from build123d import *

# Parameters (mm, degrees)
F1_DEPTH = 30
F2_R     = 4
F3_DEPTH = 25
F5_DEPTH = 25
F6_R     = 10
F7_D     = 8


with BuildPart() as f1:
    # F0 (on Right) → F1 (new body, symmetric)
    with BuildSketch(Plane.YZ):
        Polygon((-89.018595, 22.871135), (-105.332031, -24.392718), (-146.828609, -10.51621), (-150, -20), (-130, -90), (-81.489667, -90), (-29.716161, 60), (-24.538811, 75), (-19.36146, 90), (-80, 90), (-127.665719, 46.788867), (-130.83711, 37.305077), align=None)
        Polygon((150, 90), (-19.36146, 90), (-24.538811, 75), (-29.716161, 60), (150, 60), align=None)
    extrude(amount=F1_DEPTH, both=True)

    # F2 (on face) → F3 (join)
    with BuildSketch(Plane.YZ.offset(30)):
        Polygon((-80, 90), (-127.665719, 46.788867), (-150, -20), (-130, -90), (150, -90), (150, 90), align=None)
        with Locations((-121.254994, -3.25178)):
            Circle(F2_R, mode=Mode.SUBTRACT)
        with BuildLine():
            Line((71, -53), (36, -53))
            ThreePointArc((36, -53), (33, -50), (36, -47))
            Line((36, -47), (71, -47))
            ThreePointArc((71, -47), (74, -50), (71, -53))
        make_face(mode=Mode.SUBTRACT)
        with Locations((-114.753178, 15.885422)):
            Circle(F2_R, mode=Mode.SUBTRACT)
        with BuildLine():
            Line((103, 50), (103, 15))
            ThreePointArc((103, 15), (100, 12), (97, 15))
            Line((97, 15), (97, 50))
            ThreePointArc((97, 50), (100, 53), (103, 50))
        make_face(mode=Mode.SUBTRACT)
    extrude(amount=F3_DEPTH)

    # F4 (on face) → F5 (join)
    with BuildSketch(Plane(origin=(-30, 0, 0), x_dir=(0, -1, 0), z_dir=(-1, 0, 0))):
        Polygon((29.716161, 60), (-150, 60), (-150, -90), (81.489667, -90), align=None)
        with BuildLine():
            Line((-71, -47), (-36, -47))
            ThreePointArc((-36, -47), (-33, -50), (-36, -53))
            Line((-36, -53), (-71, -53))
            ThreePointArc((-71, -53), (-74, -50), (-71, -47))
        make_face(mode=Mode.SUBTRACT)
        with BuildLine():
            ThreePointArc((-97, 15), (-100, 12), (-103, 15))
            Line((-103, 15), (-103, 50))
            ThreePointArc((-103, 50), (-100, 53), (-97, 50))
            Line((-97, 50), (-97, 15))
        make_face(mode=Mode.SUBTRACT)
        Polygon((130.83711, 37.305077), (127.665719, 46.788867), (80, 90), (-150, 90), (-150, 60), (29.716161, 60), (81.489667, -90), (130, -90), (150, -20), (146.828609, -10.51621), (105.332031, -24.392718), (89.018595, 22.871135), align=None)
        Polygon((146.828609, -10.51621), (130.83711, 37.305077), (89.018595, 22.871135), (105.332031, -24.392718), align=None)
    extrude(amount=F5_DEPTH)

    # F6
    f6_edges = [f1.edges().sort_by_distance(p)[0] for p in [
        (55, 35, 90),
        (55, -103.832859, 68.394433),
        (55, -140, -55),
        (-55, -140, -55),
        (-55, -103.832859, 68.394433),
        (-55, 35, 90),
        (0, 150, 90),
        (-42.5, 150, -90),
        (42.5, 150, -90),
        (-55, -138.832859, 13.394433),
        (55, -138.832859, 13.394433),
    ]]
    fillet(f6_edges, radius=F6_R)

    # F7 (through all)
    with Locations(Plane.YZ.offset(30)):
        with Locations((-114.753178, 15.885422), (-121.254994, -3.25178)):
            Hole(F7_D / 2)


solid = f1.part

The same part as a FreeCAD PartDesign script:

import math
import FreeCAD as App
import Part
import Sketcher
from FreeCAD import Vector
Q = App.Units.Quantity


def edges_at(feature, points):
    """Names of the edges that pass closest to the given points."""
    edges = feature.Shape.Edges
    near = lambda p: min(range(len(edges)), key=lambda i: edges[i].distToShape(Part.Vertex(*p))[0])
    return sorted({f"Edge{near(p) + 1}" for p in points})

doc = App.newDocument("Part")
body = doc.addObject("PartDesign::Body", "Body")

# Sketch on YZ plane
sketch1 = body.newObject("Sketcher::SketchObject", "Sketch")
sketch1.AttachmentSupport = (doc.getObject("YZ_Plane"), [""])
sketch1.MapMode = "FlatFace"
sketch1.addGeometry([
    Part.LineSegment(Vector(-89.018595, 22.871135, 0), Vector(-105.332031, -24.392718, 0)),  # 0
    Part.LineSegment(Vector(-105.332031, -24.392718, 0), Vector(-146.828609, -10.51621, 0)),  # 1
    Part.LineSegment(Vector(-146.828609, -10.51621, 0), Vector(-150, -20, 0)),  # 2
    Part.LineSegment(Vector(-150, -20, 0), Vector(-130, -90, 0)),  # 3
    Part.LineSegment(Vector(-130, -90, 0), Vector(-81.489667, -90, 0)),  # 4
    Part.LineSegment(Vector(-81.489667, -90, 0), Vector(-29.716161, 60, 0)),  # 5
    Part.LineSegment(Vector(-29.716161, 60, 0), Vector(150, 60, 0)),  # 6
    Part.LineSegment(Vector(150, 60, 0), Vector(150, 90, 0)),  # 7
    Part.LineSegment(Vector(150, 90, 0), Vector(-80, 90, 0)),  # 8
    Part.LineSegment(Vector(-80, 90, 0), Vector(-127.665719, 46.788867, 0)),  # 9
    Part.LineSegment(Vector(-127.665719, 46.788867, 0), Vector(-130.83711, 37.305077, 0)),  # 10
    Part.LineSegment(Vector(-130.83711, 37.305077, 0), Vector(-89.018595, 22.871135, 0)),  # 11
], False)
sketch1.addConstraint([
    Sketcher.Constraint("Coincident", 0, 2, 1, 1),
    Sketcher.Constraint("Coincident", 1, 2, 2, 1),
    Sketcher.Constraint("Coincident", 2, 2, 3, 1),
    Sketcher.Constraint("Coincident", 3, 2, 4, 1),
    Sketcher.Constraint("Coincident", 4, 2, 5, 1),
    Sketcher.Constraint("Coincident", 5, 2, 6, 1),
    Sketcher.Constraint("Coincident", 6, 2, 7, 1),
    Sketcher.Constraint("Coincident", 7, 2, 8, 1),
    Sketcher.Constraint("Coincident", 8, 2, 9, 1),
    Sketcher.Constraint("Coincident", 9, 2, 10, 1),
    Sketcher.Constraint("Coincident", 10, 2, 11, 1),
    Sketcher.Constraint("Coincident", 11, 2, 0, 1),
    Sketcher.Constraint("Horizontal", 4),
    Sketcher.Constraint("Horizontal", 6),
    Sketcher.Constraint("Vertical", 7),
    Sketcher.Constraint("Horizontal", 8),
    Sketcher.Constraint("DistanceX", 8, 2, 8, 1, Q("230 mm")),
    Sketcher.Constraint("DistanceY", 7, 1, 7, 2, Q("30 mm")),
    Sketcher.Constraint("Distance", 0, Q("50 mm")),
    Sketcher.Constraint("Distance", 2, Q("10 mm")),
    Sketcher.Constraint("Distance", 10, Q("10 mm")),
    Sketcher.Constraint("DistanceX", 2, 2, -1, 1, Q("150 mm")),
    Sketcher.Constraint("DistanceY", 2, 2, -1, 1, Q("20 mm")),
    Sketcher.Constraint("DistanceX", 3, 2, -1, 1, Q("130 mm")),
    Sketcher.Constraint("DistanceY", 3, 2, -1, 1, Q("90 mm")),
    Sketcher.Constraint("DistanceY", -1, 1, 5, 2, Q("60 mm")),
    Sketcher.Constraint("DistanceX", -1, 1, 6, 2, Q("150 mm")),
    Sketcher.Constraint("DistanceX", 6, 1, 6, 2, Q("179.716161 mm")),
    Sketcher.Constraint("DistanceX", 1, 2, 10, 2, Q("15.991499 mm")),
    Sketcher.Constraint("Distance", 9, Q("64.336792 mm")),
    Sketcher.Constraint("DistanceX", 4, 1, 4, 2, Q("48.510333 mm")),
    Sketcher.Constraint("DistanceX", 0, 2, -1, 1, Q("105.332031 mm")),
    Sketcher.Constraint("DistanceX", 1, 2, -1, 1, Q("146.828609 mm")),
    Sketcher.Constraint("DistanceX", 9, 2, -1, 1, Q("127.665719 mm")),
    Sketcher.Constraint("DistanceY", 3, 2, 0, 2, Q("65.607282 mm")),
    Sketcher.Constraint("DistanceY", 11, 2, 10, 2, Q("14.433942 mm")),
])
pad1 = body.newObject("PartDesign::Pad", "Pad")
pad1.Profile = sketch1
pad1.Length = 60
pad1.Midplane = True

# Sketch on YZ plane
sketch2 = body.newObject("Sketcher::SketchObject", "Sketch001")
sketch2.AttachmentSupport = (doc.getObject("YZ_Plane"), [""])
sketch2.MapMode = "FlatFace"
sketch2.AttachmentOffset = App.Placement(Vector(0, 0, 30), App.Rotation())
sketch2.addGeometry([
    Part.LineSegment(Vector(-80, 90, 0), Vector(-127.7, 46.8, 0)),  # 0
    Part.LineSegment(Vector(-127.7, 46.8, 0), Vector(-150, -20, 0)),  # 1
    Part.LineSegment(Vector(-150, -20, 0), Vector(-130, -90, 0)),  # 2
    Part.LineSegment(Vector(-130, -90, 0), Vector(150, -90, 0)),  # 3
    Part.LineSegment(Vector(150, -90, 0), Vector(150, 90, 0)),  # 4
    Part.LineSegment(Vector(150, 90, 0), Vector(-80, 90, 0)),  # 5
    Part.Circle(Vector(-121.3, -3.3, 0), Vector(0, 0, 1), 4),  # 6
    Part.ArcOfCircle(Part.Circle(Vector(71, -50, 0), Vector(0, 0, 1), 3), math.radians(-90), math.radians(90)),  # 7
    Part.LineSegment(Vector(71, -53, 0), Vector(36, -53, 0)),  # 8
    Part.ArcOfCircle(Part.Circle(Vector(36, -50, 0), Vector(0, 0, 1), 3), math.radians(90), math.radians(270)),  # 9
    Part.LineSegment(Vector(36, -47, 0), Vector(71, -47, 0)),  # 10
    Part.Circle(Vector(-114.8, 15.9, 0), Vector(0, 0, 1), 4),  # 11
    Part.ArcOfCircle(Part.Circle(Vector(100, 50, 0), Vector(0, 0, 1), 3), math.radians(0), math.radians(180)),  # 12
    Part.LineSegment(Vector(103, 50, 0), Vector(103, 15, 0)),  # 13
    Part.ArcOfCircle(Part.Circle(Vector(100, 15, 0), Vector(0, 0, 1), 3), math.radians(180), math.radians(360)),  # 14
    Part.LineSegment(Vector(97, 15, 0), Vector(97, 50, 0)),  # 15
], False)
sketch2.addConstraint([
    Sketcher.Constraint("Coincident", 0, 2, 1, 1),
    Sketcher.Constraint("Coincident", 1, 2, 2, 1),
    Sketcher.Constraint("Coincident", 2, 2, 3, 1),
    Sketcher.Constraint("Coincident", 3, 2, 4, 1),
    Sketcher.Constraint("Coincident", 4, 2, 5, 1),
    Sketcher.Constraint("Coincident", 5, 2, 0, 1),
    Sketcher.Constraint("Tangent", 7, 1, 8, 1),
    Sketcher.Constraint("Tangent", 8, 2, 9, 2),
    Sketcher.Constraint("Tangent", 9, 1, 10, 1),
    Sketcher.Constraint("Tangent", 10, 2, 7, 2),
    Sketcher.Constraint("Tangent", 12, 1, 13, 1),
    Sketcher.Constraint("Tangent", 13, 2, 14, 2),
    Sketcher.Constraint("Tangent", 14, 1, 15, 1),
    Sketcher.Constraint("Tangent", 15, 2, 12, 2),
    Sketcher.Constraint("Horizontal", 3),
    Sketcher.Constraint("Vertical", 4),
    Sketcher.Constraint("Horizontal", 5),
    Sketcher.Constraint("Horizontal", 8),
    Sketcher.Constraint("Horizontal", 10),
    Sketcher.Constraint("Vertical", 13),
    Sketcher.Constraint("Vertical", 15),
    Sketcher.Constraint("Equal", 6, 11),
    Sketcher.Constraint("Equal", 9, 12),
    Sketcher.Constraint("Equal", 10, 13),
    Sketcher.Constraint("Diameter", 6, Q("8 mm")),
    Sketcher.Constraint("Radius", 7, Q("3 mm")),
    Sketcher.Constraint("DistanceX", 3, 1, 3, 2, Q("280 mm")),
    Sketcher.Constraint("DistanceX", 5, 2, 5, 1, Q("230 mm")),
    Sketcher.Constraint("DistanceX", 8, 2, 8, 1, Q("35 mm")),
    Sketcher.Constraint("DistanceY", 4, 1, 4, 2, Q("180 mm")),
    Sketcher.Constraint("DistanceX", -1, 1, 7, 3, Q("71 mm")),
    Sketcher.Constraint("DistanceY", 7, 3, -1, 1, Q("50 mm")),
    Sketcher.Constraint("DistanceX", -1, 1, 12, 3, Q("100 mm")),
    Sketcher.Constraint("DistanceY", -1, 1, 12, 3, Q("50 mm")),
    Sketcher.Constraint("DistanceX", 1, 2, -1, 1, Q("150 mm")),
    Sketcher.Constraint("DistanceY", 1, 2, -1, 1, Q("20 mm")),
    Sketcher.Constraint("DistanceX", 2, 2, -1, 1, Q("130 mm")),
    Sketcher.Constraint("DistanceY", 2, 2, -1, 1, Q("90 mm")),
    Sketcher.Constraint("Angle", 1, Q("-108.49 deg")),
    Sketcher.Constraint("Distance", 0, Q("64.336792 mm")),
    Sketcher.Constraint("DistanceY", 6, 3, -1, 1, Q("3.25178 mm")),
    Sketcher.Constraint("DistanceX", 11, 3, -1, 1, Q("114.753178 mm")),
    Sketcher.Constraint("DistanceY", 11, 3, 12, 3, Q("34.114578 mm")),
    Sketcher.Constraint("DistanceX", 6, 3, -1, 1, Q("121.254994 mm")),
])
pad2 = body.newObject("PartDesign::Pad", "Pad001")
pad2.Profile = sketch2
pad2.Length = 25

# Sketch on YZ plane
sketch3 = body.newObject("Sketcher::SketchObject", "Sketch002")
sketch3.AttachmentSupport = (doc.getObject("YZ_Plane"), [""])
sketch3.MapMode = "FlatFace"
sketch3.AttachmentOffset = App.Placement(Vector(0, 0, -30), App.Rotation())
sketch3.addGeometry([
    Part.LineSegment(Vector(150, -90, 0), Vector(-130, -90, 0)),  # 0
    Part.LineSegment(Vector(-130, -90, 0), Vector(-150, -20, 0)),  # 1
    Part.LineSegment(Vector(-150, -20, 0), Vector(-146.8, -10.5, 0)),  # 2
    Part.LineSegment(Vector(-146.8, -10.5, 0), Vector(-130.8, 37.3, 0)),  # 3
    Part.LineSegment(Vector(-130.8, 37.3, 0), Vector(-127.7, 46.8, 0)),  # 4
    Part.LineSegment(Vector(-127.7, 46.8, 0), Vector(-80, 90, 0)),  # 5
    Part.LineSegment(Vector(-80, 90, 0), Vector(150, 90, 0)),  # 6
    Part.LineSegment(Vector(150, 90, 0), Vector(150, -90, 0)),  # 7
    Part.ArcOfCircle(Part.Circle(Vector(71, -50, 0), Vector(0, 0, 1), 3), math.radians(-90), math.radians(90)),  # 8
    Part.LineSegment(Vector(71, -47, 0), Vector(36, -47, 0)),  # 9
    Part.ArcOfCircle(Part.Circle(Vector(36, -50, 0), Vector(0, 0, 1), 3), math.radians(90), math.radians(270)),  # 10
    Part.LineSegment(Vector(36, -53, 0), Vector(71, -53, 0)),  # 11
    Part.LineSegment(Vector(97, 50, 0), Vector(97, 15, 0)),  # 12
    Part.ArcOfCircle(Part.Circle(Vector(100, 15, 0), Vector(0, 0, 1), 3), math.radians(180), math.radians(360)),  # 13
    Part.LineSegment(Vector(103, 15, 0), Vector(103, 50, 0)),  # 14
    Part.ArcOfCircle(Part.Circle(Vector(100, 50, 0), Vector(0, 0, 1), 3), math.radians(0), math.radians(180)),  # 15
], False)
sketch3.addConstraint([
    Sketcher.Constraint("Coincident", 0, 2, 1, 1),
    Sketcher.Constraint("Coincident", 1, 2, 2, 1),
    Sketcher.Constraint("Coincident", 2, 2, 3, 1),
    Sketcher.Constraint("Coincident", 3, 2, 4, 1),
    Sketcher.Constraint("Coincident", 4, 2, 5, 1),
    Sketcher.Constraint("Coincident", 5, 2, 6, 1),
    Sketcher.Constraint("Coincident", 6, 2, 7, 1),
    Sketcher.Constraint("Coincident", 7, 2, 0, 1),
    Sketcher.Constraint("Tangent", 8, 2, 9, 1),
    Sketcher.Constraint("Tangent", 9, 2, 10, 1),
    Sketcher.Constraint("Tangent", 10, 2, 11, 1),
    Sketcher.Constraint("Tangent", 11, 2, 8, 1),
    Sketcher.Constraint("Tangent", 12, 2, 13, 1),
    Sketcher.Constraint("Tangent", 13, 2, 14, 1),
    Sketcher.Constraint("Tangent", 14, 2, 15, 1),
    Sketcher.Constraint("Tangent", 15, 2, 12, 1),
    Sketcher.Constraint("Horizontal", 0),
    Sketcher.Constraint("Horizontal", 6),
    Sketcher.Constraint("Vertical", 7),
    Sketcher.Constraint("Horizontal", 9),
    Sketcher.Constraint("Horizontal", 11),
    Sketcher.Constraint("Vertical", 12),
    Sketcher.Constraint("Vertical", 14),
    Sketcher.Constraint("Equal", 10, 13),
    Sketcher.Constraint("Parallel", 2, 3),
    Sketcher.Constraint("Parallel", 3, 4),
    Sketcher.Constraint("Equal", 11, 12),
    Sketcher.Constraint("Equal", 2, 4),
    Sketcher.Constraint("Radius", 8, Q("3 mm")),
    Sketcher.Constraint("DistanceX", 0, 2, 0, 1, Q("280 mm")),
    Sketcher.Constraint("DistanceX", 6, 1, 6, 2, Q("230 mm")),
    Sketcher.Constraint("DistanceX", 9, 2, 9, 1, Q("35 mm")),
    Sketcher.Constraint("DistanceY", 7, 2, 7, 1, Q("180 mm")),
    Sketcher.Constraint("Distance", 2, Q("10 mm")),
    Sketcher.Constraint("DistanceX", -1, 1, 8, 3, Q("71 mm")),
    Sketcher.Constraint("DistanceY", 8, 3, -1, 1, Q("50 mm")),
    Sketcher.Constraint("DistanceX", -1, 1, 13, 3, Q("100 mm")),
    Sketcher.Constraint("DistanceY", -1, 1, 13, 3, Q("15 mm")),
    Sketcher.Constraint("DistanceX", 0, 2, -1, 1, Q("130 mm")),
    Sketcher.Constraint("DistanceY", 0, 2, -1, 1, Q("90 mm")),
    Sketcher.Constraint("DistanceX", 1, 2, -1, 1, Q("150 mm")),
    Sketcher.Constraint("DistanceY", 1, 2, -1, 1, Q("20 mm")),
    Sketcher.Constraint("Angle", 2, Q("71.510002 deg")),
    Sketcher.Constraint("DistanceX", 2, 2, 3, 2, Q("15.991499 mm")),
])
pad3 = body.newObject("PartDesign::Pad", "Pad002")
pad3.Profile = sketch3
pad3.Length = 25
pad3.Reversed = True
doc.recompute()

fillet = body.newObject("PartDesign::Fillet", "Fillet")
fillet.Base = (pad3, edges_at(pad3, [
    (55, 35, 90),
    (55, -103.833, 68.394),
    (55, -140, -55),
    (-55, -140, -55),
    (-55, -103.833, 68.394),
    (-55, 35, 90),
    (0, 150, 90),
    (-42.5, 150, -90),
    (42.5, 150, -90),
    (-55, -138.833, 13.394),
    (55, -138.833, 13.394),
]))
fillet.Radius = 10

# Sketch on YZ plane
sketch4 = body.newObject("Sketcher::SketchObject", "Sketch003")
sketch4.AttachmentSupport = (doc.getObject("YZ_Plane"), [""])
sketch4.MapMode = "FlatFace"
sketch4.AttachmentOffset = App.Placement(Vector(0, 0, 30), App.Rotation())
sketch4.addGeometry([
    Part.Circle(Vector(-114.8, 15.9, 0), Vector(0, 0, 1), 4),
    Part.Circle(Vector(-121.3, -3.3, 0), Vector(0, 0, 1), 4),
], False)
sketch4.addConstraint([
    Sketcher.Constraint("Equal", 0, 1),
    Sketcher.Constraint("Diameter", 0, Q("8 mm")),
    Sketcher.Constraint("DistanceX", 0, 3, -1, 1, Q("114.753178 mm")),
    Sketcher.Constraint("DistanceY", 1, 3, -1, 1, Q("3.25178 mm")),
    Sketcher.Constraint("DistanceY", -1, 1, 0, 3, Q("15.885422 mm")),
    Sketcher.Constraint("DistanceX", 1, 3, -1, 1, Q("121.254994 mm")),
])
doc.recompute()
hole = body.newObject("PartDesign::Hole", "Hole")
hole.Profile = sketch4
hole.ThreadType = "None"
hole.Diameter = 8
hole.DepthType = "ThroughAll"

doc.recompute()
